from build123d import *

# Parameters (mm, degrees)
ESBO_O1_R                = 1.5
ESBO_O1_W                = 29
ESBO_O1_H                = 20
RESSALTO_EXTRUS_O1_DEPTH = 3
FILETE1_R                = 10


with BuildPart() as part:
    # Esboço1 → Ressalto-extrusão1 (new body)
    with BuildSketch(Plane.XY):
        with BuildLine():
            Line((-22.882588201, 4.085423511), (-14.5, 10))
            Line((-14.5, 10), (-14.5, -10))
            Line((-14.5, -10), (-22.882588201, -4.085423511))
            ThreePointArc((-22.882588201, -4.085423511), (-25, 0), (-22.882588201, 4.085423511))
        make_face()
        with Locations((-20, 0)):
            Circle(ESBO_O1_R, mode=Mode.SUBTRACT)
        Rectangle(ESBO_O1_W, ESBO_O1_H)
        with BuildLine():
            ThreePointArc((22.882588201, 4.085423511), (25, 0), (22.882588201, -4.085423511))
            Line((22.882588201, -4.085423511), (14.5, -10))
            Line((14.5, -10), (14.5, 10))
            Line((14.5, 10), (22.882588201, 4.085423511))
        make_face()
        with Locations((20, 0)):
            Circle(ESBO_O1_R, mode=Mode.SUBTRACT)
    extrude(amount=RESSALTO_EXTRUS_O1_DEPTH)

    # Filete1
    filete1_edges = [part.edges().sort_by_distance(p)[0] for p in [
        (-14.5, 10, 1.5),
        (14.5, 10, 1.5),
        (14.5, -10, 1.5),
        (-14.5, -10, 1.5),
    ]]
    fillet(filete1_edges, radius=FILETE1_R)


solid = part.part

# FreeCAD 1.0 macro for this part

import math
import FreeCAD as App
import Part
import Sketcher


def edges_at(feature, points):
    """Names of the edges that pass closest to the given points."""
    edges = feature.Shape.Edges
    near = lambda p: min(range(len(edges)), key=lambda i: edges[i].distToShape(Part.Vertex(*p))[0])
    return sorted({f"Edge{near(p) + 1}" for p in points})

doc = App.newDocument("Part")
body = doc.addObject("PartDesign::Body", "Body")

sketch1 = doc.addObject("Sketcher::SketchObject", "Sketch")
body.addObject(sketch1)
sketch1.AttachmentSupport = (doc.XY_Plane, [""])
sketch1.MapMode = "FlatFace"
sketch1.addGeometry(Part.LineSegment(App.Vector(-14.5, 10, 0), App.Vector(-22.9, 4.1, 0)), False)
sketch1.addGeometry(Part.ArcOfCircle(Part.Circle(App.Vector(-20, 0, 0), App.Vector(0, 0, 1), 5), math.radians(125), math.radians(235)), False)
sketch1.addGeometry(Part.LineSegment(App.Vector(-22.9, -4.1, 0), App.Vector(-14.5, -10, 0)), False)
sketch1.addGeometry(Part.LineSegment(App.Vector(-14.5, -10, 0), App.Vector(14.5, -10, 0)), False)
sketch1.addGeometry(Part.LineSegment(App.Vector(14.5, -10, 0), App.Vector(22.9, -4.1, 0)), False)
sketch1.addGeometry(Part.ArcOfCircle(Part.Circle(App.Vector(20, 0, 0), App.Vector(0, 0, 1), 5), math.radians(-55), math.radians(55)), False)
sketch1.addGeometry(Part.LineSegment(App.Vector(22.9, 4.1, 0), App.Vector(14.5, 10, 0)), False)
sketch1.addGeometry(Part.LineSegment(App.Vector(14.5, 10, 0), App.Vector(-14.5, 10, 0)), False)
sketch1.addGeometry(Part.Circle(App.Vector(20, 0, 0), App.Vector(0, 0, 1), 1.5), False)
sketch1.addGeometry(Part.Circle(App.Vector(-20, 0, 0), App.Vector(0, 0, 1), 1.5), False)
sketch1.addConstraint(Sketcher.Constraint("Tangent", 0, 2, 1, 1))
sketch1.addConstraint(Sketcher.Constraint("Tangent", 1, 2, 2, 1))
sketch1.addConstraint(Sketcher.Constraint("Coincident", 2, 2, 3, 1))
sketch1.addConstraint(Sketcher.Constraint("Coincident", 3, 2, 4, 1))
sketch1.addConstraint(Sketcher.Constraint("Tangent", 4, 2, 5, 1))
sketch1.addConstraint(Sketcher.Constraint("Tangent", 5, 2, 6, 1))
sketch1.addConstraint(Sketcher.Constraint("Coincident", 6, 2, 7, 1))
sketch1.addConstraint(Sketcher.Constraint("Coincident", 7, 2, 0, 1))
sketch1.addConstraint(Sketcher.Constraint("Horizontal", 3))
sketch1.addConstraint(Sketcher.Constraint("Horizontal", 7))
sketch1.addConstraint(Sketcher.Constraint("Coincident", 8, 3, 5, 3))
sketch1.addConstraint(Sketcher.Constraint("Coincident", 9, 3, 1, 3))
sketch1.addConstraint(Sketcher.Constraint("Equal", 1, 5))
sketch1.addConstraint(Sketcher.Constraint("Equal", 8, 9))
sketch1.addConstraint(Sketcher.Constraint("Symmetric", 1, 3, 5, 3, -1, 1))
sketch1.addConstraint(Sketcher.Constraint("Symmetric", 2, 2, 6, 2, -1, 1))
sketch1.addConstraint(Sketcher.Constraint("Symmetric", 1, 2, 4, 2, -2))
sketch1.addConstraint(Sketcher.Constraint("Parallel", 0, 4))
sketch1.addConstraint(Sketcher.Constraint("Diameter", 8, 3.0))
sketch1.addConstraint(Sketcher.Constraint("Radius", 1, 5.0))
sketch1.addConstraint(Sketcher.Constraint("DistanceX", 3, 1, 3, 2, 29.0))
sketch1.addConstraint(Sketcher.Constraint("DistanceX", 1, 3, -1, 1, 20.0))
sketch1.addConstraint(Sketcher.Constraint("DistanceY", 2, 2, -1, 1, 10.0))
pad1 = doc.addObject("PartDesign::Pad", "Pad")
body.addObject(pad1)
pad1.Profile = sketch1
pad1.Length = 3
doc.recompute()

fillet = doc.addObject("PartDesign::Fillet", "Fillet")
body.addObject(fillet)
fillet.Base = (pad1, edges_at(pad1, [
    (-14.5, 10, 1.5),
    (14.5, 10, 1.5),
    (14.5, -10, 1.5),
    (-14.5, -10, 1.5),
]))
fillet.Radius = 10

doc.recompute()
